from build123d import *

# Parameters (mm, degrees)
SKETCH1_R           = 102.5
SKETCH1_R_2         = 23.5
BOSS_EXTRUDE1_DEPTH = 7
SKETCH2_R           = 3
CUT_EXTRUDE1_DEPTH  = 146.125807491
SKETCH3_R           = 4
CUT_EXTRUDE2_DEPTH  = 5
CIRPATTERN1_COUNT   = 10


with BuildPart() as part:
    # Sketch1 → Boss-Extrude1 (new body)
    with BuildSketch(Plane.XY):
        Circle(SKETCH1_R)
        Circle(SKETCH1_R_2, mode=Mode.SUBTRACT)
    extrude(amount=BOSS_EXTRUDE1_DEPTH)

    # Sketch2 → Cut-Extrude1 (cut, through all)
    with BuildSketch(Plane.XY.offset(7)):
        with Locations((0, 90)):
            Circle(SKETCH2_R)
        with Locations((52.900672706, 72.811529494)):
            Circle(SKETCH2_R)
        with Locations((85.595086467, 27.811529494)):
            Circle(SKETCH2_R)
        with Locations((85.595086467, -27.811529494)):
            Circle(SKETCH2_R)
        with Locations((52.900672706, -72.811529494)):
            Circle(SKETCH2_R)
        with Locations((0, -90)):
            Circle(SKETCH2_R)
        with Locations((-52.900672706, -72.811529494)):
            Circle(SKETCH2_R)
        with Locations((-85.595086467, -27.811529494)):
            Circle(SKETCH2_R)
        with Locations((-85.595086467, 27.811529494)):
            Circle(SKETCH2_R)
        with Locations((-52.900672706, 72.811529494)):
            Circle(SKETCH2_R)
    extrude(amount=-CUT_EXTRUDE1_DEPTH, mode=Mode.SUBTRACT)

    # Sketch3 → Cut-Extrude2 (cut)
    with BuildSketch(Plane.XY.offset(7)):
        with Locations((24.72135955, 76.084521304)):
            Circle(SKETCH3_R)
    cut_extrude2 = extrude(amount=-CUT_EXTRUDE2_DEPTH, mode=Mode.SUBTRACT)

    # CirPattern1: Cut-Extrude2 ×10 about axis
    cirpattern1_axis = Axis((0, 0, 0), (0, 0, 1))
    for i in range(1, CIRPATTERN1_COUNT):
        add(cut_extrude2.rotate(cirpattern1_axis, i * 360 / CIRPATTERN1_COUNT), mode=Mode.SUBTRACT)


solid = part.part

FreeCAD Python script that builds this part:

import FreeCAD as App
import Part
import Sketcher

V = App.Vector

doc = App.newDocument("Part")
params = doc.addObject("Spreadsheet::Sheet", "Params")
for row, (alias, value) in enumerate([
    ("sketch1_diameter", "205 mm"),
    ("sketch1_diameter2", "47 mm"),
    ("pad1_length", "7 mm"),
    ("sketch2_diameter", "6 mm"),
    ("sketch3_diameter", "8 mm"),
    ("pocket2_length", "5 mm"),
], start=1):
    params.set(f"A{row}", alias)
    params.set(f"B{row}", "=" + value)
    params.setAlias(f"B{row}", alias)

body = doc.addObject("PartDesign::Body", "Body")

# Sketch on XY plane
sketch1 = body.newObject("Sketcher::SketchObject", "Sketch")
sketch1.AttachmentSupport = (doc.getObject("XY_Plane"), [""])
sketch1.MapMode = "FlatFace"
sketch1.addGeometry([
    Part.Circle(V(0, 0, 0), V(0, 0, 1), 102),
    Part.Circle(V(0, 0, 0), V(0, 0, 1), 24),
], False)
sketch1.addConstraint([
    Sketcher.Constraint("Coincident", 0, 3, -1, 1),
    Sketcher.Constraint("Coincident", 1, 3, -1, 1),
    Sketcher.Constraint("Diameter", 0, 205.0),
    Sketcher.Constraint("Diameter", 1, 47.0),
])
sketch1.setExpression("Constraints[2]", "Params.sketch1_diameter")
sketch1.setExpression("Constraints[3]", "Params.sketch1_diameter2")
pad1 = body.newObject("PartDesign::Pad", "Pad")
pad1.Profile = sketch1
pad1.setExpression("Length", "Params.pad1_length")

# Sketch on XY plane
sketch2 = body.newObject("Sketcher::SketchObject", "Sketch001")
sketch2.AttachmentSupport = (doc.getObject("XY_Plane"), [""])
sketch2.MapMode = "FlatFace"
sketch2.AttachmentOffset = App.Placement(V(0, 0, 7), App.Rotation())
sketch2.addGeometry([
    Part.Circle(V(0, 90, 0), V(0, 0, 1), 3),  # 0
    Part.Circle(V(52.9, 72.8, 0), V(0, 0, 1), 3),  # 1
    Part.Circle(V(85.6, 27.8, 0), V(0, 0, 1), 3),  # 2
    Part.Circle(V(85.6, -27.8, 0), V(0, 0, 1), 3),  # 3
    Part.Circle(V(52.9, -72.8, 0), V(0, 0, 1), 3),  # 4
    Part.Circle(V(0, -90, 0), V(0, 0, 1), 3),  # 5
    Part.Circle(V(-52.9, -72.8, 0), V(0, 0, 1), 3),  # 6
    Part.Circle(V(-85.6, -27.8, 0), V(0, 0, 1), 3),  # 7
    Part.Circle(V(-85.6, 27.8, 0), V(0, 0, 1), 3),  # 8
    Part.Circle(V(-52.9, 72.8, 0), V(0, 0, 1), 3),  # 9
], False)
sketch2.addConstraint([
    Sketcher.Constraint("Equal", 0, 1),
    Sketcher.Constraint("Equal", 1, 2),
    Sketcher.Constraint("Equal", 2, 3),
    Sketcher.Constraint("Equal", 3, 4),
    Sketcher.Constraint("Equal", 4, 5),
    Sketcher.Constraint("Equal", 5, 6),
    Sketcher.Constraint("Equal", 6, 7),
    Sketcher.Constraint("Equal", 7, 8),
    Sketcher.Constraint("Equal", 8, 9),
    Sketcher.Constraint("Symmetric", 0, 3, 5, 3, -1, 1),
    Sketcher.Constraint("Symmetric", 1, 3, 6, 3, -1, 1),
    Sketcher.Constraint("Symmetric", 2, 3, 7, 3, -1, 1),
    Sketcher.Constraint("Symmetric", 3, 3, 8, 3, -1, 1),
    Sketcher.Constraint("Symmetric", 4, 3, 9, 3, -1, 1),
    Sketcher.Constraint("Symmetric", 4, 3, 6, 3, -2),
    Sketcher.Constraint("Symmetric", 3, 3, 7, 3, -2),
    Sketcher.Constraint("PointOnObject", 0, 3, -2),
    Sketcher.Constraint("Diameter", 0, 6.0),
    Sketcher.Constraint("DistanceY", -1, 1, 0, 3, 90.0),
    Sketcher.Constraint("DistanceY", 2, 3, 1, 3, 45.0),
    Sketcher.Constraint("DistanceY", -1, 1, 1, 3, 72.811529),
    Sketcher.Constraint("DistanceX", 6, 3, 3, 3, 138.495759),
    Sketcher.Constraint("DistanceX", -1, 1, 1, 3, 52.900673),
])
sketch2.setExpression("Constraints[17]", "Params.sketch2_diameter")
pocket1 = body.newObject("PartDesign::Pocket", "Pocket")
pocket1.Profile = sketch2
pocket1.Type = "ThroughAll"

# Sketch on XY plane
sketch3 = body.newObject("Sketcher::SketchObject", "Sketch002")
sketch3.AttachmentSupport = (doc.getObject("XY_Plane"), [""])
sketch3.MapMode = "FlatFace"
sketch3.AttachmentOffset = App.Placement(V(0, 0, 7), App.Rotation())
sketch3.addGeometry(Part.Circle(V(24.7, 76.1, 0), V(0, 0, 1), 4), False)
sketch3.addConstraint([
    Sketcher.Constraint("Diameter", 0, 8.0),
    Sketcher.Constraint("DistanceX", -1, 1, 0, 3, 24.72136),
    Sketcher.Constraint("DistanceY", -1, 1, 0, 3, 76.084521),
])
sketch3.setExpression("Constraints[0]", "Params.sketch3_diameter")
pocket2 = body.newObject("PartDesign::Pocket", "Pocket001")
pocket2.Profile = sketch3
pocket2.setExpression("Length", "Params.pocket2_length")
doc.recompute()

polarpattern = body.newObject("PartDesign::PolarPattern", "PolarPattern")
polarpattern.Originals = [pocket2]
polarpattern.Axis = (doc.getObject("Z_Axis"), [""])
polarpattern.Angle = 360
polarpattern.Occurrences = 10
body.Tip = polarpattern

doc.recompute()
